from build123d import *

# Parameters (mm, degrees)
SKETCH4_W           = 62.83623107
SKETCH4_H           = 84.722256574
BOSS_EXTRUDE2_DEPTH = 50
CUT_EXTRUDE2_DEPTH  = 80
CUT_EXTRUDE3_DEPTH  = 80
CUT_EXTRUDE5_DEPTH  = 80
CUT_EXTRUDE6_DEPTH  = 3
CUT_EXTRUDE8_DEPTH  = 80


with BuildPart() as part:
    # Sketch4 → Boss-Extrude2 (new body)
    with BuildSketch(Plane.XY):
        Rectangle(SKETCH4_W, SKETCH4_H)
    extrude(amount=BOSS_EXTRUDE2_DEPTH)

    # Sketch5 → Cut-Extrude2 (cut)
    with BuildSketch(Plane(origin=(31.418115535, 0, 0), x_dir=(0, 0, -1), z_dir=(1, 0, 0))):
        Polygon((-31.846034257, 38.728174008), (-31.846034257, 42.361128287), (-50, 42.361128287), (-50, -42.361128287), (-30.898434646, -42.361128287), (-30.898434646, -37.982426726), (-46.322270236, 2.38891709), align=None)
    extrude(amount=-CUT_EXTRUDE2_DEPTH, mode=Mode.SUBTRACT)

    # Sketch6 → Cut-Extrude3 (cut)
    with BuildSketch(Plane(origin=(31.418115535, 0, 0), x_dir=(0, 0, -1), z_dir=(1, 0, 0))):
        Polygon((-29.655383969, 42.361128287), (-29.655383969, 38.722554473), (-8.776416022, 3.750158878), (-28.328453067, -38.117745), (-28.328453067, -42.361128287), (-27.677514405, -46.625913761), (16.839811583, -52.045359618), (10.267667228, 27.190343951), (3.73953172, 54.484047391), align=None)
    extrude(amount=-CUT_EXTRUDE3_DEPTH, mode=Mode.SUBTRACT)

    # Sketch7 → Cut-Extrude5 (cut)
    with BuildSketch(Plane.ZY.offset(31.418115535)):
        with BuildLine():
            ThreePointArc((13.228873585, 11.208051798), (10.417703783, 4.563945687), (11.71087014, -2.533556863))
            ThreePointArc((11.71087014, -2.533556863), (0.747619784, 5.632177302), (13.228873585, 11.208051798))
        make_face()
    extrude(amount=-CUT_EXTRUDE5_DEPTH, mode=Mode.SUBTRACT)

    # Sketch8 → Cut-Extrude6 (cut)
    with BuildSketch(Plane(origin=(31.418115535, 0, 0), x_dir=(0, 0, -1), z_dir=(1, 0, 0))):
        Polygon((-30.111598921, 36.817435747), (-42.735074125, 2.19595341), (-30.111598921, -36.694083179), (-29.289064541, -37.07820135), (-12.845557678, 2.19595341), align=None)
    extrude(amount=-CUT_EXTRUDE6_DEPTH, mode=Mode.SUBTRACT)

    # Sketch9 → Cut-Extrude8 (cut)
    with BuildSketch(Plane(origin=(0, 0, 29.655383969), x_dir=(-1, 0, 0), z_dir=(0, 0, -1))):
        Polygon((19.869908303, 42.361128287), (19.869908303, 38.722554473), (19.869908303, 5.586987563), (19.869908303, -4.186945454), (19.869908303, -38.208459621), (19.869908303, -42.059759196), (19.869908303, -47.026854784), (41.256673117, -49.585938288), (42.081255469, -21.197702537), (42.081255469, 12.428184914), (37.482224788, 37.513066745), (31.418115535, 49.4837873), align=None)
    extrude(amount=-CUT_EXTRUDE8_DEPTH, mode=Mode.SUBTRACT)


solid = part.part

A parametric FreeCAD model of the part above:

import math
import FreeCAD as App
import Part
import Sketcher
from FreeCAD import Vector


def add_polygon(sketch, points):
    """Adds a closed chain of lines whose ends are joined by coincident constraints."""
    first, n = sketch.GeometryCount, len(points)
    for a, b in zip(points, points[1:] + points[:1]):
        sketch.addGeometry(Part.LineSegment(App.Vector(*a, 0), App.Vector(*b, 0)), False)
    for i in range(n):
        sketch.addConstraint(Sketcher.Constraint("Coincident", first + i, 2, first + (i + 1) % n, 1))

doc = App.newDocument("Part")
body = doc.addObject("PartDesign::Body", "Body")

sketch1 = doc.addObject("Sketcher::SketchObject", "Sketch")
body.addObject(sketch1)
sketch1.AttachmentSupport = (doc.XY_Plane, [""])
sketch1.MapMode = "FlatFace"
add_polygon(sketch1, [(-31, 42), (-31, -42), (31, -42), (31, 42)])
sketch1.addConstraint(Sketcher.Constraint("Vertical", 0))
sketch1.addConstraint(Sketcher.Constraint("Horizontal", 1))
sketch1.addConstraint(Sketcher.Constraint("Vertical", 2))
sketch1.addConstraint(Sketcher.Constraint("Horizontal", 3))
sketch1.addConstraint(Sketcher.Constraint("Symmetric", 0, 2, 2, 2, -1, 1))
sketch1.addConstraint(Sketcher.Constraint("DistanceX", 1, 1, 1, 2, 62.836231))
sketch1.addConstraint(Sketcher.Constraint("DistanceY", 0, 2, 0, 1, 84.722257))
pad1 = doc.addObject("PartDesign::Pad", "Pad")
body.addObject(pad1)
pad1.Profile = sketch1
pad1.Length = 50

sketch2 = doc.addObject("Sketcher::SketchObject", "Sketch001")
body.addObject(sketch2)
sketch2.AttachmentSupport = (doc.YZ_Plane, [""])
sketch2.MapMode = "FlatFace"
sketch2.AttachmentOffset = App.Placement(Vector(0, 0, 31.418116), App.Rotation())
add_polygon(sketch2, [(38.7, 31.8), (42.4, 31.8), (42.4, 50), (-42.4, 50), (-42.4, 30.9), (-38, 30.9), (2.4, 46.3)])
sketch2.addConstraint(Sketcher.Constraint("Horizontal", 0))
sketch2.addConstraint(Sketcher.Constraint("Vertical", 1))
sketch2.addConstraint(Sketcher.Constraint("Horizontal", 2))
sketch2.addConstraint(Sketcher.Constraint("Vertical", 3))
sketch2.addConstraint(Sketcher.Constraint("Horizontal", 4))
sketch2.addConstraint(Sketcher.Constraint("DistanceY", -1, 1, 1, 2, 50.0))
sketch2.addConstraint(Sketcher.Constraint("DistanceX", 4, 1, 4, 2, 4.378702))
sketch2.addConstraint(Sketcher.Constraint("DistanceY", 3, 2, 0, 2, 0.9476))
sketch2.addConstraint(Sketcher.Constraint("DistanceX", 4, 2, 6, 2, 76.710601))
sketch2.addConstraint(Sketcher.Constraint("Distance", 5, 43.217359))
sketch2.addConstraint(Sketcher.Constraint("Distance", 6, 39.116531))
sketch2.addConstraint(Sketcher.Constraint("DistanceX", 0, 1, 0, 2, 3.632954))
sketch2.addConstraint(Sketcher.Constraint("DistanceY", 1, 1, 1, 2, 18.153966))
sketch2.addConstraint(Sketcher.Constraint("DistanceX", -1, 1, 0, 2, 42.361128))
pocket1 = doc.addObject("PartDesign::Pocket", "Pocket")
body.addObject(pocket1)
pocket1.Profile = sketch2
pocket1.Length = 80

sketch3 = doc.addObject("Sketcher::SketchObject", "Sketch002")
body.addObject(sketch3)
sketch3.AttachmentSupport = (doc.YZ_Plane, [""])
sketch3.MapMode = "FlatFace"
sketch3.AttachmentOffset = App.Placement(Vector(0, 0, 31.418116), App.Rotation())
add_polygon(sketch3, [(42.4, 29.7), (38.7, 29.7), (3.8, 8.8), (-38.1, 28.3), (-42.4, 28.3), (-46.6, 27.7), (-52, -16.8), (27.2, -10.3), (54.5, -3.7)])
sketch3.addConstraint(Sketcher.Constraint("Horizontal", 0))
sketch3.addConstraint(Sketcher.Constraint("Horizontal", 3))
sketch3.addConstraint(Sketcher.Constraint("DistanceX", 2, 2, 0, 2, 76.840299))
sketch3.addConstraint(Sketcher.Constraint("DistanceY", 1, 2, 4, 2, 18.901098))
sketch3.addConstraint(Sketcher.Constraint("Distance", 1, 40.730821))
sketch3.addConstraint(Sketcher.Constraint("Distance", 5, 44.845989))
sketch3.addConstraint(Sketcher.Constraint("Distance", 7, 28.063549))
sketch3.addConstraint(Sketcher.Constraint("Distance", 8, 35.527251))
sketch3.addConstraint(Sketcher.Constraint("DistanceX", 0, 2, 0, 1, 3.638574))
sketch3.addConstraint(Sketcher.Constraint("DistanceX", 3, 2, 3, 1, 4.243383))
sketch3.addConstraint(Sketcher.Constraint("DistanceX", -1, 1, 1, 2, 3.750159))
sketch3.addConstraint(Sketcher.Constraint("DistanceX", 3, 2, -1, 1, 42.361128))
sketch3.addConstraint(Sketcher.Constraint("DistanceX", 5, 2, -1, 1, 52.04536))
sketch3.addConstraint(Sketcher.Constraint("DistanceY", 5, 2, -1, 1, 16.839812))
sketch3.addConstraint(Sketcher.Constraint("DistanceY", 7, 2, -1, 1, 3.739532))
sketch3.addConstraint(Sketcher.Constraint("DistanceY", 2, 2, 0, 2, 1.326931))
sketch3.addConstraint(Sketcher.Constraint("DistanceX", 4, 2, 2, 2, 8.508169))
sketch3.addConstraint(Sketcher.Constraint("DistanceX", 6, 2, 0, 2, 11.532211))
pocket2 = doc.addObject("PartDesign::Pocket", "Pocket001")
body.addObject(pocket2)
pocket2.Profile = sketch3
pocket2.Length = 80

sketch4 = doc.addObject("Sketcher::SketchObject", "Sketch003")
body.addObject(sketch4)
sketch4.AttachmentSupport = (doc.YZ_Plane, [""])
sketch4.MapMode = "FlatFace"
sketch4.AttachmentOffset = App.Placement(Vector(0, 0, -31.418116), App.Rotation())
sketch4.addGeometry(Part.ArcOfCircle(Part.Circle(Vector(3, 23, 0), Vector(0, 0, 1), 13), math.radians(-117), math.radians(-50)), False)
sketch4.addGeometry(Part.ArcOfCircle(Part.Circle(Vector(5, 9, 0), Vector(0, 0, 1), 8), math.radians(157), math.radians(396)), False)
sketch4.addConstraint(Sketcher.Constraint("Coincident", 0, 1, 1, 1))
sketch4.addConstraint(Sketcher.Constraint("Coincident", 1, 2, 0, 2))
sketch4.addConstraint(Sketcher.Constraint("DistanceX", -1, 1, 0, 3, 3.180001))
sketch4.addConstraint(Sketcher.Constraint("Radius", 0, 12.604263))
sketch4.addConstraint(Sketcher.Constraint("Radius", 1, 7.922633))
sketch4.addConstraint(Sketcher.Constraint("DistanceY", -1, 1, 0, 3, 22.945758))
sketch4.addConstraint(Sketcher.Constraint("DistanceY", -1, 1, 1, 3, 8.62235))
sketch4.addConstraint(Sketcher.Constraint("DistanceY", -1, 1, 0, 1, 11.71087))
pocket3 = doc.addObject("PartDesign::Pocket", "Pocket002")
body.addObject(pocket3)
pocket3.Profile = sketch4
pocket3.Length = 80
pocket3.Reversed = True

sketch5 = doc.addObject("Sketcher::SketchObject", "Sketch004")
body.addObject(sketch5)
sketch5.AttachmentSupport = (doc.YZ_Plane, [""])
sketch5.MapMode = "FlatFace"
sketch5.AttachmentOffset = App.Placement(Vector(0, 0, 31.418116), App.Rotation())
add_polygon(sketch5, [(36.8, 30.1), (2.2, 42.7), (-36.7, 30.1), (-37.1, 29.3), (2.2, 12.8)])
sketch5.addConstraint(Sketcher.Constraint("Horizontal", 1, 2, 4, 2))
sketch5.addConstraint(Sketcher.Constraint("Vertical", 0, 2, 3, 2))
sketch5.addConstraint(Sketcher.Constraint("DistanceY", -1, 1, 1, 2, 30.111599))
sketch5.addConstraint(Sketcher.Constraint("DistanceX", 2, 2, -1, 1, 37.078201))
sketch5.addConstraint(Sketcher.Constraint("Distance", 0, 36.85104))
sketch5.addConstraint(Sketcher.Constraint("DistanceX", 2, 2, 1, 2, 0.384118))
sketch5.addConstraint(Sketcher.Constraint("DistanceY", 2, 2, 0, 2, 13.44601))
sketch5.addConstraint(Sketcher.Constraint("DistanceY", 3, 2, 1, 2, 17.266041))
sketch5.addConstraint(Sketcher.Constraint("DistanceX", 1, 2, 4, 2, 73.511519))
sketch5.addConstraint(Sketcher.Constraint("Distance", 1, 40.887493))
pocket4 = doc.addObject("PartDesign::Pocket", "Pocket003")
body.addObject(pocket4)
pocket4.Profile = sketch5
pocket4.Length = 3

sketch6 = doc.addObject("Sketcher::SketchObject", "Sketch005")
body.addObject(sketch6)
sketch6.AttachmentSupport = (doc.XY_Plane, [""])
sketch6.MapMode = "FlatFace"
sketch6.AttachmentOffset = App.Placement(Vector(0, 0, 29.655384), App.Rotation())
add_polygon(sketch6, [(-20, 42), (-20, -47), (-41, -50), (-42, -21), (-42, 12), (-37, 38), (-31, 49)])
sketch6.addConstraint(Sketcher.Constraint("Vertical", 0))
sketch6.addConstraint(Sketcher.Constraint("Vertical", 3))
sketch6.addConstraint(Sketcher.Constraint("Distance", 6, 13.568101))
sketch6.addConstraint(Sketcher.Constraint("Distance", 2, 28.400209))
sketch6.addConstraint(Sketcher.Constraint("DistanceY", 0, 2, 0, 1, 89.387983))
sketch6.addConstraint(Sketcher.Constraint("DistanceY", 3, 1, 3, 2, 33.625887))
sketch6.addConstraint(Sketcher.Constraint("DistanceX", 0, 2, -1, 1, 19.869908))
sketch6.addConstraint(Sketcher.Constraint("DistanceY", 1, 2, -1, 1, 49.585938))
sketch6.addConstraint(Sketcher.Constraint("DistanceY", -1, 1, 6, 2, 42.361128))
sketch6.addConstraint(Sketcher.Constraint("DistanceY", 0, 2, 3, 2, 59.45504))
sketch6.addConstraint(Sketcher.Constraint("DistanceX", 3, 2, 4, 2, 4.599031))
sketch6.addConstraint(Sketcher.Constraint("DistanceY", 3, 2, 4, 2, 25.084882))
sketch6.addConstraint(Sketcher.Constraint("DistanceX", 4, 2, 5, 2, 6.064109))
sketch6.addConstraint(Sketcher.Constraint("DistanceY", 4, 2, 5, 2, 11.970721))
pocket5 = doc.addObject("PartDesign::Pocket", "Pocket004")
body.addObject(pocket5)
pocket5.Profile = sketch6
pocket5.Length = 80
pocket5.Reversed = True

doc.recompute()
